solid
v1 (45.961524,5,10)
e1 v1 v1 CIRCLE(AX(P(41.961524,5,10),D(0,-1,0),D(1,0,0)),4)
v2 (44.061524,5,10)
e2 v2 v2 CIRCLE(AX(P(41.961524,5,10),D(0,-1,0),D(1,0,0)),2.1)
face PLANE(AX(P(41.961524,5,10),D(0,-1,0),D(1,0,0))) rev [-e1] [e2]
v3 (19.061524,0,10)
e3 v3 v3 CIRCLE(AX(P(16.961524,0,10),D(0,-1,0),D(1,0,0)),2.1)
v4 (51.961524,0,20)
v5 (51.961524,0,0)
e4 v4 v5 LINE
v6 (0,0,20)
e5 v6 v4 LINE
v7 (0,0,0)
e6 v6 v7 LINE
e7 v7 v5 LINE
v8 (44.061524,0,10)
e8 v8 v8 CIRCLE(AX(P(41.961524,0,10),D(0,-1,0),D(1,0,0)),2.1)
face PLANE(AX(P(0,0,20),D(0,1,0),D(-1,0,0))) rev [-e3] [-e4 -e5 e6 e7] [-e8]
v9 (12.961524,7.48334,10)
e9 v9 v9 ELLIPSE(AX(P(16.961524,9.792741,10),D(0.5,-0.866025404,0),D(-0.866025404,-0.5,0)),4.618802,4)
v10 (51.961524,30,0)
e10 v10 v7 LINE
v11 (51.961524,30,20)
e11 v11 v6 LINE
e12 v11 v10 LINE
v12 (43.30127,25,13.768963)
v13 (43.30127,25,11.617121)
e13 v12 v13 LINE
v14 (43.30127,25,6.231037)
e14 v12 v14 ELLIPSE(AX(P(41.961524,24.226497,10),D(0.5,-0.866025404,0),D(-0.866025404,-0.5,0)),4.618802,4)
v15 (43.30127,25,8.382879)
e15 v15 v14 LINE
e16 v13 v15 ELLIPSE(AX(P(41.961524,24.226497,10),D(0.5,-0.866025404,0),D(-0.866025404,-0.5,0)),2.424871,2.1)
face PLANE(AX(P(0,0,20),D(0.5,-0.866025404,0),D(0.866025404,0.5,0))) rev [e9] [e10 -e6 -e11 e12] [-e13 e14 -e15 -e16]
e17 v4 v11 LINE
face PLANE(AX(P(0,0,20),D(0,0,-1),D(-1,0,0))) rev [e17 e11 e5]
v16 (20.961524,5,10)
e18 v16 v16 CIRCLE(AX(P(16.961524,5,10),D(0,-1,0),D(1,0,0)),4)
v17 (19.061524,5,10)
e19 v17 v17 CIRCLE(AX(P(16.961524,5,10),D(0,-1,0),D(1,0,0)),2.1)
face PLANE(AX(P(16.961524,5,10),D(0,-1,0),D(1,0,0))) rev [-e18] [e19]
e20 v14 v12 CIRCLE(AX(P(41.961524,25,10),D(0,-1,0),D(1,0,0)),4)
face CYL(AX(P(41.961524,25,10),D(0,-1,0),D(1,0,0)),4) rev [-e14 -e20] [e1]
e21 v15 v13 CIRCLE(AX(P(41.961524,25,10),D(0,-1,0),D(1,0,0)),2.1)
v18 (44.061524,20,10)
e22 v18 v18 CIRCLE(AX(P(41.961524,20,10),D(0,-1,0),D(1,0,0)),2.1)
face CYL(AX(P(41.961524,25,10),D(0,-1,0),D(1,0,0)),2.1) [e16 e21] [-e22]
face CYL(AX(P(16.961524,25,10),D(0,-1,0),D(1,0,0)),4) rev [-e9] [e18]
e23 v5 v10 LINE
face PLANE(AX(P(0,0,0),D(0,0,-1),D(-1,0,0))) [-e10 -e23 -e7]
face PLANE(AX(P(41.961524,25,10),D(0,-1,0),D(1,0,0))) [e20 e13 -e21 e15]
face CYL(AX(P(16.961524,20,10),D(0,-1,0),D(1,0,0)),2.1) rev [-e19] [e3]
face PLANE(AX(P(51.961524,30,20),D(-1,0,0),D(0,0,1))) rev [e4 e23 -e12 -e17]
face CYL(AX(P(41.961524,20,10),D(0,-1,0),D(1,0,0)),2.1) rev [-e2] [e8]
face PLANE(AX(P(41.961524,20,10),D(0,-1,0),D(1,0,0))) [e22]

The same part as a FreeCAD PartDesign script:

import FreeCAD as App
import Part
import Sketcher
Q = App.Units.Quantity

doc = App.newDocument("Part")
body = doc.addObject("PartDesign::Body", "Body")

# Sketch on XY plane
sketch1 = body.newObject("Sketcher::SketchObject", "Sketch")
sketch1.AttachmentSupport = (doc.getObject("XY_Plane"), [""])
sketch1.MapMode = "FlatFace"
sketch1.addGeometry([
    Part.LineSegment(App.Vector(0, 0, 0), App.Vector(52, 0, 0)),
    Part.LineSegment(App.Vector(52, 0, 0), App.Vector(52, 30, 0)),
    Part.LineSegment(App.Vector(52, 30, 0), App.Vector(0, 0, 0)),
], False)
sketch1.addConstraint([
    Sketcher.Constraint("Coincident", 0, 2, 1, 1),
    Sketcher.Constraint("Coincident", 1, 2, 2, 1),
    Sketcher.Constraint("Coincident", 2, 2, 0, 1),
    Sketcher.Constraint("Horizontal", 0),
    Sketcher.Constraint("Vertical", 1),
    Sketcher.Constraint("Coincident", 2, 2, -1, 1),
    Sketcher.Constraint("DistanceY", 1, 1, 1, 2, 30.0),
    Sketcher.Constraint("Angle", 2, Q("-150 deg")),
])
pad1 = body.newObject("PartDesign::Pad", "Pad")
pad1.Profile = sketch1
pad1.Length = 20

# Sketch on XZ plane
sketch2 = body.newObject("Sketcher::SketchObject", "Sketch001")
sketch2.AttachmentSupport = (doc.getObject("XZ_Plane"), [""])
sketch2.MapMode = "FlatFace"
sketch2.addGeometry([
    Part.Circle(App.Vector(17, 10, 0), App.Vector(0, 0, 1), 2.1),
    Part.Circle(App.Vector(42, 10, 0), App.Vector(0, 0, 1), 2.1),
], False)
sketch2.addConstraint([
    Sketcher.Constraint("Equal", 0, 1),
    Sketcher.Constraint("Horizontal", 0, 3, 1, 3),
    Sketcher.Constraint("Diameter", 0, 4.2),
    Sketcher.Constraint("DistanceY", -1, 1, 0, 3, 10.0),
    Sketcher.Constraint("DistanceX", 0, 3, 1, 3, 25.0),
    Sketcher.Constraint("DistanceX", -1, 1, 0, 3, 16.961524),
])
pocket1 = body.newObject("PartDesign::Pocket", "Pocket")
pocket1.Profile = sketch2
pocket1.Length = 20

# Sketch on XZ plane
sketch3 = body.newObject("Sketcher::SketchObject", "Sketch002")
sketch3.AttachmentSupport = (doc.getObject("XZ_Plane"), [""])
sketch3.MapMode = "FlatFace"
sketch3.AttachmentOffset = App.Placement(App.Vector(0, 0, -5), App.Rotation())
sketch3.addGeometry([
    Part.Circle(App.Vector(17, 10, 0), App.Vector(0, 0, 1), 4),
    Part.Circle(App.Vector(17, 10, 0), App.Vector(0, 0, 1), 2.1),
    Part.Circle(App.Vector(42, 10, 0), App.Vector(0, 0, 1), 4),
    Part.Circle(App.Vector(42, 10, 0), App.Vector(0, 0, 1), 2.1),
], False)
sketch3.addConstraint([
    Sketcher.Constraint("Coincident", 1, 3, 0, 3),
    Sketcher.Constraint("Coincident", 3, 3, 2, 3),
    Sketcher.Constraint("Equal", 0, 2),
    Sketcher.Constraint("Equal", 1, 3),
    Sketcher.Constraint("Horizontal", 1, 3, 2, 3),
    Sketcher.Constraint("Diameter", 0, 8.0),
    Sketcher.Constraint("Diameter", 1, 4.2),
    Sketcher.Constraint("DistanceY", -1, 1, 0, 3, 10.0),
    Sketcher.Constraint("DistanceX", 0, 3, 2, 3, 25.0),
    Sketcher.Constraint("DistanceX", -1, 1, 0, 3, 16.961524),
])
pocket2 = body.newObject("PartDesign::Pocket", "Pocket001")
pocket2.Profile = sketch3
pocket2.Length = 20

doc.recompute()
